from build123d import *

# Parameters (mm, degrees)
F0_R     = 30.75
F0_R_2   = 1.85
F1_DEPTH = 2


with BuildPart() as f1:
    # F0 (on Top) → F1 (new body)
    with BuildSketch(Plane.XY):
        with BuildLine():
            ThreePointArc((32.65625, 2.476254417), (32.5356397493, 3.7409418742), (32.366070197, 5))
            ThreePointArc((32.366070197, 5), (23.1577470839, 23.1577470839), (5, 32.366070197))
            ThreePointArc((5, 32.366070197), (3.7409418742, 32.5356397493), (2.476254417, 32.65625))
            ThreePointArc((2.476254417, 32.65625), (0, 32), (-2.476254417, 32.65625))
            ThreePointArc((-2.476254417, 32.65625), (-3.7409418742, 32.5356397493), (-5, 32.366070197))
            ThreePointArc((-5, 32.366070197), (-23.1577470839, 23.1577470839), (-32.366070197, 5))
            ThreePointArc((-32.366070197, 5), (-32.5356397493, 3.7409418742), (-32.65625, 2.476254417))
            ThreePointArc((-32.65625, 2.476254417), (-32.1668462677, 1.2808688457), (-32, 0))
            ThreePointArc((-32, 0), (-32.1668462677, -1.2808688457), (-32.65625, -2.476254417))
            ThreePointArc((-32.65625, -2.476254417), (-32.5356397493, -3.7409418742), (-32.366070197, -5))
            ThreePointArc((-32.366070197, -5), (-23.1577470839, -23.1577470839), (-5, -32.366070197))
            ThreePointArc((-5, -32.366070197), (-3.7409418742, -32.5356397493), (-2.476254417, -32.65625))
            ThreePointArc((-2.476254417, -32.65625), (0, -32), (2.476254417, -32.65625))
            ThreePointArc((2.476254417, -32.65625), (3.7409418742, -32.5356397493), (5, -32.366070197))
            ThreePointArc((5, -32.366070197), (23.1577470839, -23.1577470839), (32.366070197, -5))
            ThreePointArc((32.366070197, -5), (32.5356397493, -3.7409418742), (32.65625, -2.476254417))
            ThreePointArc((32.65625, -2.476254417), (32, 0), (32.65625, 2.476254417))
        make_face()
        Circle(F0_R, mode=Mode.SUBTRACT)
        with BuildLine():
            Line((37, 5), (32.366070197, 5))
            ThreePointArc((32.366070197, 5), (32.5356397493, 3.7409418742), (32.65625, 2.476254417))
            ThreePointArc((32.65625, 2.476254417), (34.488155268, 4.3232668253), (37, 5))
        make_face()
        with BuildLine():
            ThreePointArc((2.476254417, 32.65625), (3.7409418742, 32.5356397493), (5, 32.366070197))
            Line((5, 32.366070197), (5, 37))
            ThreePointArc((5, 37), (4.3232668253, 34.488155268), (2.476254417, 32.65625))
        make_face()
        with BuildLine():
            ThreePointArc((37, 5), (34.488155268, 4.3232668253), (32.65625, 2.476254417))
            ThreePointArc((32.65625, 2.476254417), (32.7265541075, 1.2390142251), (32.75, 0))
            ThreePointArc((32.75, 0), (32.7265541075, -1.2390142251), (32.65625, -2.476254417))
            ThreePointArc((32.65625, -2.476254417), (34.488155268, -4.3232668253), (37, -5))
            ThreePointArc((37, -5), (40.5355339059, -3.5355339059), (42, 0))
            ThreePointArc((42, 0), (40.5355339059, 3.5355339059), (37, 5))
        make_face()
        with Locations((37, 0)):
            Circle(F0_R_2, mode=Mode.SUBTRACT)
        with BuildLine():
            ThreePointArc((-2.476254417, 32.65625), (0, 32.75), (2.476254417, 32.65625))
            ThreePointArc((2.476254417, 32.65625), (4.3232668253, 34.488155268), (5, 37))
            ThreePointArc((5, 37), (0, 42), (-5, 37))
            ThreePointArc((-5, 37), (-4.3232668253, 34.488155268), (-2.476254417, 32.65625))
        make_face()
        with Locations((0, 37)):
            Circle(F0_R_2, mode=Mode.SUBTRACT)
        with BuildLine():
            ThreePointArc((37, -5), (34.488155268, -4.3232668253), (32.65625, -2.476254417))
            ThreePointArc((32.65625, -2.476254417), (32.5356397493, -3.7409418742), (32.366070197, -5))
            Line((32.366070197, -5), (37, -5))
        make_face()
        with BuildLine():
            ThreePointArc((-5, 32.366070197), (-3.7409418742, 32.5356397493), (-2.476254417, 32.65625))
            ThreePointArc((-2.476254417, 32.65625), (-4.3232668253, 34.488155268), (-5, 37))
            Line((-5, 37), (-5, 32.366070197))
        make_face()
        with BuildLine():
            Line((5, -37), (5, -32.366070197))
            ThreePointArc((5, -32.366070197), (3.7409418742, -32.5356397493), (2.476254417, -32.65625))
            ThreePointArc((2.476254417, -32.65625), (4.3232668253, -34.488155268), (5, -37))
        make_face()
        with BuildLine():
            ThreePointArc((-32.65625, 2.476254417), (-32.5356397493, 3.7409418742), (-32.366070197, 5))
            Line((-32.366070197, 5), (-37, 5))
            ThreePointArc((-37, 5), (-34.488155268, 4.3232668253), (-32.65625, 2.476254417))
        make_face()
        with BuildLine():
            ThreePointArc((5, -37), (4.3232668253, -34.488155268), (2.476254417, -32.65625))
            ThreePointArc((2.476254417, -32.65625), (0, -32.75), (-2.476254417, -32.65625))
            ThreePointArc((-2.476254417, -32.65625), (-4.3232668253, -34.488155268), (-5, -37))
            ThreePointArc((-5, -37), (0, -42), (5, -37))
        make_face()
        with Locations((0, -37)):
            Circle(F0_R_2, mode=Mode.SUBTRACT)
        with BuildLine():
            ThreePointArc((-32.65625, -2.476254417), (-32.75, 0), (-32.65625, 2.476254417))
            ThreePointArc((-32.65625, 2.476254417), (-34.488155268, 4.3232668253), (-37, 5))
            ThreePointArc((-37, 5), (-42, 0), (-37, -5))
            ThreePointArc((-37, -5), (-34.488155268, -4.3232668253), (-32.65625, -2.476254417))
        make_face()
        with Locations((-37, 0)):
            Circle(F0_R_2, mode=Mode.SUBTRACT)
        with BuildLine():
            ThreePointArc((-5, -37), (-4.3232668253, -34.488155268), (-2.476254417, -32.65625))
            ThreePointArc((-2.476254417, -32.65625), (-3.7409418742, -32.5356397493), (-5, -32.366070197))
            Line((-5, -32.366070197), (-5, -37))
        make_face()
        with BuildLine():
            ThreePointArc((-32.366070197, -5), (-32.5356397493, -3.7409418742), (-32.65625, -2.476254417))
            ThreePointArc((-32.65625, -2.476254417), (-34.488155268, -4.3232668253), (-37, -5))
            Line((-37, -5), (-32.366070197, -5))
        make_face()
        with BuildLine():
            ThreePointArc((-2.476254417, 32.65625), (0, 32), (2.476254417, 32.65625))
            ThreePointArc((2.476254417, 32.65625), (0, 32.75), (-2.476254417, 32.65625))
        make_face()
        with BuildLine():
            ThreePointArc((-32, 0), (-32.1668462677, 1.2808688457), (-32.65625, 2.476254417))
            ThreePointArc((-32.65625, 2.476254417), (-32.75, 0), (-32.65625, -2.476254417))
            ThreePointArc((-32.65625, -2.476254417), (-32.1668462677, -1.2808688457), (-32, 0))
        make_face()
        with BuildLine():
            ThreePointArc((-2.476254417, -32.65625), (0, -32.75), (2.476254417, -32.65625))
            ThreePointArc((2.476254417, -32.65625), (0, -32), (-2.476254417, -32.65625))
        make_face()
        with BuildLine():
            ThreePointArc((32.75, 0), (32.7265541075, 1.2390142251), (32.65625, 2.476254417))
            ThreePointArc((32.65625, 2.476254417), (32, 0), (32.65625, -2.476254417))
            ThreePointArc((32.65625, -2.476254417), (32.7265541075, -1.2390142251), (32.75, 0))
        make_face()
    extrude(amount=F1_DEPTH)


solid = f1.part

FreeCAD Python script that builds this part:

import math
import FreeCAD as App
import Part
import Sketcher

V = App.Vector
Q = App.Units.Quantity

doc = App.newDocument("Part")
body = doc.addObject("PartDesign::Body", "Body")

sketch1 = body.newObject("Sketcher::SketchObject", "Sketch")
sketch1.AttachmentSupport = (doc.getObject("XY_Plane"), [""])
sketch1.MapMode = "FlatFace"
sketch1.addGeometry([
    Part.ArcOfCircle(Part.Circle(V(-37, 0, 0), V(0, 0, 1), 5), math.radians(90), math.radians(270)),
    Part.LineSegment(V(-37, -5, 0), V(-32.4, -5, 0)),
    Part.ArcOfCircle(Part.Circle(V(0, 0, 0), V(0, 0, 1), 32.8), math.radians(-171), math.radians(-99)),
    Part.LineSegment(V(-5, -32.4, 0), V(-5, -37, 0)),
    Part.ArcOfCircle(Part.Circle(V(0, -37, 0), V(0, 0, 1), 5), math.radians(180), math.radians(360)),
    Part.LineSegment(V(5, -37, 0), V(5, -32.4, 0)),
    Part.ArcOfCircle(Part.Circle(V(0, 0, 0), V(0, 0, 1), 32.8), math.radians(-81), math.radians(-9)),
    Part.LineSegment(V(32.4, -5, 0), V(37, -5, 0)),
    Part.ArcOfCircle(Part.Circle(V(37, 0, 0), V(0, 0, 1), 5), math.radians(-90), math.radians(0)),
    Part.ArcOfCircle(Part.Circle(V(37, 0, 0), V(0, 0, 1), 5), math.radians(0), math.radians(90)),
    Part.LineSegment(V(37, 5, 0), V(32.4, 5, 0)),
    Part.ArcOfCircle(Part.Circle(V(0, 0, 0), V(0, 0, 1), 32.8), math.radians(9), math.radians(81)),
    Part.LineSegment(V(5, 32.4, 0), V(5, 37, 0)),
    Part.ArcOfCircle(Part.Circle(V(0, 37, 0), V(0, 0, 1), 5), math.radians(0), math.radians(180)),
    Part.LineSegment(V(-5, 37, 0), V(-5, 32.4, 0)),
    Part.ArcOfCircle(Part.Circle(V(0, 0, 0), V(0, 0, 1), 32.8), math.radians(99), math.radians(171)),
    Part.LineSegment(V(-32.4, 5, 0), V(-37, 5, 0)),
    Part.Circle(V(0, -37, 0), V(0, 0, 1), 1.9),
    Part.Circle(V(-37, 0, 0), V(0, 0, 1), 1.9),
    Part.Circle(V(0, 0, 0), V(0, 0, 1), 30.8),
    Part.Circle(V(37, 0, 0), V(0, 0, 1), 1.9),
    Part.Circle(V(0, 37, 0), V(0, 0, 1), 1.9),
], False)
sketch1.addConstraint([
    Sketcher.Constraint("Tangent", 0, 2, 1, 1),
    Sketcher.Constraint("Coincident", 1, 2, 2, 1),
    Sketcher.Constraint("Coincident", 2, 2, 3, 1),
    Sketcher.Constraint("Tangent", 3, 2, 4, 1),
    Sketcher.Constraint("Tangent", 4, 2, 5, 1),
    Sketcher.Constraint("Coincident", 5, 2, 6, 1),
    Sketcher.Constraint("Coincident", 6, 2, 7, 1),
    Sketcher.Constraint("Tangent", 7, 2, 8, 1),
    Sketcher.Constraint("Tangent", 8, 2, 9, 1),
    Sketcher.Constraint("Tangent", 9, 2, 10, 1),
    Sketcher.Constraint("Coincident", 10, 2, 11, 1),
    Sketcher.Constraint("Coincident", 11, 2, 12, 1),
    Sketcher.Constraint("Tangent", 12, 2, 13, 1),
    Sketcher.Constraint("Tangent", 13, 2, 14, 1),
    Sketcher.Constraint("Coincident", 14, 2, 15, 1),
    Sketcher.Constraint("Coincident", 15, 2, 16, 1),
    Sketcher.Constraint("Tangent", 16, 2, 0, 1),
    Sketcher.Constraint("Horizontal", 1),
    Sketcher.Constraint("Vertical", 3),
    Sketcher.Constraint("Vertical", 5),
    Sketcher.Constraint("Horizontal", 7),
    Sketcher.Constraint("Horizontal", 10),
    Sketcher.Constraint("Vertical", 12),
    Sketcher.Constraint("Vertical", 14),
    Sketcher.Constraint("Horizontal", 16),
    Sketcher.Constraint("Coincident", 2, 3, -1, 1),
    Sketcher.Constraint("Coincident", 6, 3, -1, 1),
    Sketcher.Constraint("Coincident", 11, 3, -1, 1),
    Sketcher.Constraint("Coincident", 15, 3, -1, 1),
    Sketcher.Constraint("Coincident", 19, 3, -1, 1),
    Sketcher.Constraint("Coincident", 17, 3, 4, 3),
    Sketcher.Constraint("Coincident", 18, 3, 0, 3),
    Sketcher.Constraint("Coincident", 20, 3, 8, 3),
    Sketcher.Constraint("Coincident", 21, 3, 13, 3),
    Sketcher.Constraint("Equal", 0, 4),
    Sketcher.Constraint("Equal", 2, 6),
    Sketcher.Constraint("Equal", 4, 8),
    Sketcher.Constraint("Equal", 8, 9),
    Sketcher.Constraint("Equal", 6, 11),
    Sketcher.Constraint("Equal", 9, 13),
    Sketcher.Constraint("Equal", 11, 15),
    Sketcher.Constraint("Equal", 17, 18),
    Sketcher.Constraint("Equal", 18, 20),
    Sketcher.Constraint("Equal", 20, 21),
    Sketcher.Constraint("Symmetric", 0, 3, 8, 3, -1, 1),
    Sketcher.Constraint("Symmetric", 4, 3, 13, 3, -1, 1),
    Sketcher.Constraint("PointOnObject", 0, 3, -1),
    Sketcher.Constraint("PointOnObject", 4, 3, -2),
    Sketcher.Constraint("PointOnObject", 8, 2, -1),
    Sketcher.Constraint("Equal", 16, 3),
    Sketcher.Constraint("Radius", 0, Q("5 mm")),
    Sketcher.Constraint("Diameter", 17, Q("3.7 mm")),
    Sketcher.Constraint("Diameter", 19, Q("61.5 mm")),
    Sketcher.Constraint("Radius", 2, Q("32.75 mm")),
    Sketcher.Constraint("DistanceX", 0, 3, -1, 1, Q("37 mm")),
])
pad1 = body.newObject("PartDesign::Pad", "Pad")
pad1.Profile = sketch1
pad1.Length = 2

doc.recompute()
